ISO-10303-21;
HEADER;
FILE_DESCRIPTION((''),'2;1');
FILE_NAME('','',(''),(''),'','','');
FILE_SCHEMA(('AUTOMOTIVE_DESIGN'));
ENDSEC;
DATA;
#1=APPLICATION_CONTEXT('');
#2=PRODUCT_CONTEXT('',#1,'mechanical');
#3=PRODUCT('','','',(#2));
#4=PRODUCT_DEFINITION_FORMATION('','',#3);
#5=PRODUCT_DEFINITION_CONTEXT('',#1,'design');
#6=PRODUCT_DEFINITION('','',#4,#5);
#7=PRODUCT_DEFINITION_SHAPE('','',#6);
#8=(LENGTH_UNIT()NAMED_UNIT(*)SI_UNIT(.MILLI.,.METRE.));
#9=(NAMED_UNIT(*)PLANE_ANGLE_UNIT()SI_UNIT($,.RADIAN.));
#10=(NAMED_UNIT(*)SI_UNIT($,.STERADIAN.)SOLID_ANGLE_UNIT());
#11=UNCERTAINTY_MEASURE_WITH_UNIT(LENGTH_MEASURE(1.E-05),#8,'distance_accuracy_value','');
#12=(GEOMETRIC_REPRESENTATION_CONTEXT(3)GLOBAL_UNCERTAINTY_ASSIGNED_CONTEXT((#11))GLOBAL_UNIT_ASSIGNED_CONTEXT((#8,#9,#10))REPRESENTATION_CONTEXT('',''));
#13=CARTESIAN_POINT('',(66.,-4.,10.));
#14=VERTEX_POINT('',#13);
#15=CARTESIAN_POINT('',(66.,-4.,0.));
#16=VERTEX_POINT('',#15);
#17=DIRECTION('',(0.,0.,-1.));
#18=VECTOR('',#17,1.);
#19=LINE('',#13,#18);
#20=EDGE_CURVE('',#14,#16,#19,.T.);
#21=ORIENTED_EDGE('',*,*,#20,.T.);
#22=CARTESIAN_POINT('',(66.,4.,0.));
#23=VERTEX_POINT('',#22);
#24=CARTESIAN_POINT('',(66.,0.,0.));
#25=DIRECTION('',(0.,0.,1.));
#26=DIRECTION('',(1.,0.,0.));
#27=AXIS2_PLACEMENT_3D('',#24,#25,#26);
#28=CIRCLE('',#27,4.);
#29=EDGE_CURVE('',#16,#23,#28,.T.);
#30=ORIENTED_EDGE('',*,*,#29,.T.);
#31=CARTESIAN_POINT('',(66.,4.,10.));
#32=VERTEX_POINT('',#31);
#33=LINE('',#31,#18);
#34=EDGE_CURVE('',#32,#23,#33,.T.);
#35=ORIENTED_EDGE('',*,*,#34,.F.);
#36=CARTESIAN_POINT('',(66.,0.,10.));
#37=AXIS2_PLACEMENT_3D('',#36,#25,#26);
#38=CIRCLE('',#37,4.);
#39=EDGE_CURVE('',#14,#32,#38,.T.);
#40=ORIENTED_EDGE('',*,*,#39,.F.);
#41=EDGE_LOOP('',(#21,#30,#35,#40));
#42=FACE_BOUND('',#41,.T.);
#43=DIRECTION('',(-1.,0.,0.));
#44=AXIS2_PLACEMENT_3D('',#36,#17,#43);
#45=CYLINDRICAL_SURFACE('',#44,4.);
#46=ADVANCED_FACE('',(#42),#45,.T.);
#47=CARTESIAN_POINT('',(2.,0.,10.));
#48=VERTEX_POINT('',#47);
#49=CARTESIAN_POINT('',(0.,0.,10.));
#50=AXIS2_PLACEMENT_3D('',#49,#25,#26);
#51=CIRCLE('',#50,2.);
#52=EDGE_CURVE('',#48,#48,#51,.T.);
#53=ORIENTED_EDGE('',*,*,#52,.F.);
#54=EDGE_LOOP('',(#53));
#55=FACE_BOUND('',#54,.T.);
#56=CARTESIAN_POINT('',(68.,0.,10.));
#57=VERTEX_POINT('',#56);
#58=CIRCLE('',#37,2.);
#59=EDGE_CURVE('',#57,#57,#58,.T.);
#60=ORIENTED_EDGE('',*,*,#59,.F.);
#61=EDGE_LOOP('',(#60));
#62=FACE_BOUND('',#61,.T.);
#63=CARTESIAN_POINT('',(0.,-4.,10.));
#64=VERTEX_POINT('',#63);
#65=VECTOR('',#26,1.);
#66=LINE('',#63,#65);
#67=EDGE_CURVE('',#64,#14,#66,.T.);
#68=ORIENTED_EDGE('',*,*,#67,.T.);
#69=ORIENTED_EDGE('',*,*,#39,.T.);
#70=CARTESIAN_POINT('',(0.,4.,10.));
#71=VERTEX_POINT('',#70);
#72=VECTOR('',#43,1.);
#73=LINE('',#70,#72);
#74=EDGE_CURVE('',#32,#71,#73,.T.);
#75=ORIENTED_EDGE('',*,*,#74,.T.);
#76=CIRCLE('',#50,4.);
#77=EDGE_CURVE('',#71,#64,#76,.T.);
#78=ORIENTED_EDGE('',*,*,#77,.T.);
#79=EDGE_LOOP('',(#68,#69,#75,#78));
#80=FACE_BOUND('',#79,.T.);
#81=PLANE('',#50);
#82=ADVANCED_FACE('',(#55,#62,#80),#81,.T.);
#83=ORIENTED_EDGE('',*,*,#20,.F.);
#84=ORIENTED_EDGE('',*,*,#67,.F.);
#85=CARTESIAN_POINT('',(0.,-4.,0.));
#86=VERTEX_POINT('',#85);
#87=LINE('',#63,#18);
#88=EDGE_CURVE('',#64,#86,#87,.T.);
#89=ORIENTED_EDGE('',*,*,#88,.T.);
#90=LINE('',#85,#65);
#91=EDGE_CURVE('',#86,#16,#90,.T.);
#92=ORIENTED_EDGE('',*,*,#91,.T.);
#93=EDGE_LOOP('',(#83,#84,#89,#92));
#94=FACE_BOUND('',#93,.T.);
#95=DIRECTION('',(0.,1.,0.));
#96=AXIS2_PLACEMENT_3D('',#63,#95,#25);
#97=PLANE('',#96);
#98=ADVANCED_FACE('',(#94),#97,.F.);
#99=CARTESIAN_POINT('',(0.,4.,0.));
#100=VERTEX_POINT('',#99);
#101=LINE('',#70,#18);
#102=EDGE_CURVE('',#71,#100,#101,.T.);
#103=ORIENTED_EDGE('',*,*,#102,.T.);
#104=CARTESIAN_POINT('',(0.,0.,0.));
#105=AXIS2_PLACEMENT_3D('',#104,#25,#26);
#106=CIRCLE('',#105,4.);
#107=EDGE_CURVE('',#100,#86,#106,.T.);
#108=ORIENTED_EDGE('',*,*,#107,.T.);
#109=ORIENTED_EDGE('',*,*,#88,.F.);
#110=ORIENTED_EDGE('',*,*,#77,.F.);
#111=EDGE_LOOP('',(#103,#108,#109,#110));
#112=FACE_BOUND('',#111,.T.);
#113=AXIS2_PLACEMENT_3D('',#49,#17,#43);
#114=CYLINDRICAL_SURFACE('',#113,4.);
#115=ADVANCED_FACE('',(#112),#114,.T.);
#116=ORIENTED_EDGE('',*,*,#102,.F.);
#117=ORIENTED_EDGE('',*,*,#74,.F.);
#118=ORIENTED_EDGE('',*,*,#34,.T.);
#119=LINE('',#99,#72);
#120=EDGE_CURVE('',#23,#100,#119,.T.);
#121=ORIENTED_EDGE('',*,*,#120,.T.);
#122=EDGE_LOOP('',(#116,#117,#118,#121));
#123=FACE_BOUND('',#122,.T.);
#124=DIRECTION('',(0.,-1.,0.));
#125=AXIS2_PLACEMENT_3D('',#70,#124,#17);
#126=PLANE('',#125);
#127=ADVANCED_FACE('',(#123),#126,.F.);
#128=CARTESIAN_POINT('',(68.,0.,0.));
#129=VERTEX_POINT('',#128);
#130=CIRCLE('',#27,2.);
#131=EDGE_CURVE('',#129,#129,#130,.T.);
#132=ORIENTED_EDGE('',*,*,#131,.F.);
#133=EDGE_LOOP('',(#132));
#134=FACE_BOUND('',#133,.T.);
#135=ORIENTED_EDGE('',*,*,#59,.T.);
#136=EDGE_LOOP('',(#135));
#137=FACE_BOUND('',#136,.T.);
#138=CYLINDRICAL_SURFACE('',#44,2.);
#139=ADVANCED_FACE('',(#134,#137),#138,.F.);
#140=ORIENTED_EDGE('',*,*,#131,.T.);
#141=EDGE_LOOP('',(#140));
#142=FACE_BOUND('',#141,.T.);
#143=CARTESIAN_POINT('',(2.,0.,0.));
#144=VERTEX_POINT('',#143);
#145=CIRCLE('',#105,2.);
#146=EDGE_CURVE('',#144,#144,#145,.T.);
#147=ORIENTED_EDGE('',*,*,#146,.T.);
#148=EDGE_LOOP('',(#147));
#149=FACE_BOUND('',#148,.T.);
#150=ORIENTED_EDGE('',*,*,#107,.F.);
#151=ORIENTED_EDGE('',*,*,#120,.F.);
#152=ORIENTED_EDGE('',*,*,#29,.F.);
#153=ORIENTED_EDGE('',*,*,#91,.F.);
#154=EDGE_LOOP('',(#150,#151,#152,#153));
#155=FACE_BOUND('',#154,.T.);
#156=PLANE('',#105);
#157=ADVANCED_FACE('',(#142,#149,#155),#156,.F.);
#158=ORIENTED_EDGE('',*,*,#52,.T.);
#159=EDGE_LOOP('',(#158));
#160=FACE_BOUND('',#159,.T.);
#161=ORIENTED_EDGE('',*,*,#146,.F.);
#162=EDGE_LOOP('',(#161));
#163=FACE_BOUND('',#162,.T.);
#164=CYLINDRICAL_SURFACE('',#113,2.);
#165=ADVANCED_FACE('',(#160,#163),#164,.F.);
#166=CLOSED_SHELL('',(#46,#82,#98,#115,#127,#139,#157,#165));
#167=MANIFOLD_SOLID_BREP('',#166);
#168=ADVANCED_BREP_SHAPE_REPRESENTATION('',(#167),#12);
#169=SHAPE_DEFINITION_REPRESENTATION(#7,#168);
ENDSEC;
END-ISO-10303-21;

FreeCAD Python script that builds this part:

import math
import FreeCAD as App
import Part
import Sketcher

doc = App.newDocument("Part")
body = doc.addObject("PartDesign::Body", "Body")

# Sketch on XY plane
sketch1 = body.newObject("Sketcher::SketchObject", "Sketch")
sketch1.AttachmentSupport = (doc.getObject("XY_Plane"), [""])
sketch1.MapMode = "FlatFace"
sketch1.addGeometry([
    Part.LineSegment(App.Vector(66, 4, 0), App.Vector(0, 4, 0)),  # 0
    Part.ArcOfCircle(Part.Circle(App.Vector(0, 0, 0), App.Vector(0, 0, 1), 4), math.radians(90), math.radians(270)),  # 1
    Part.LineSegment(App.Vector(0, -4, 0), App.Vector(66, -4, 0)),  # 2
    Part.ArcOfCircle(Part.Circle(App.Vector(66, 0, 0), App.Vector(0, 0, 1), 4), math.radians(-90), math.radians(90)),  # 3
    Part.Circle(App.Vector(66, 0, 0), App.Vector(0, 0, 1), 2),  # 4
    Part.Circle(App.Vector(0, 0, 0), App.Vector(0, 0, 1), 2),  # 5
], False)
sketch1.addConstraint([
    Sketcher.Constraint("Tangent", 0, 2, 1, 1),
    Sketcher.Constraint("Tangent", 1, 2, 2, 1),
    Sketcher.Constraint("Tangent", 2, 2, 3, 1),
    Sketcher.Constraint("Tangent", 3, 2, 0, 1),
    Sketcher.Constraint("Horizontal", 0),
    Sketcher.Constraint("Horizontal", 2),
    Sketcher.Constraint("Coincident", 1, 3, -1, 1),
    Sketcher.Constraint("Coincident", 5, 3, -1, 1),
    Sketcher.Constraint("Coincident", 4, 3, 3, 3),
    Sketcher.Constraint("Equal", 4, 5),
    Sketcher.Constraint("Diameter", 4, 4.0),
    Sketcher.Constraint("Radius", 1, 4.0),
    Sketcher.Constraint("DistanceX", 0, 2, 0, 1, 66.0),
])
pad1 = body.newObject("PartDesign::Pad", "Pad")
pad1.Profile = sketch1
pad1.Length = 10

doc.recompute()
